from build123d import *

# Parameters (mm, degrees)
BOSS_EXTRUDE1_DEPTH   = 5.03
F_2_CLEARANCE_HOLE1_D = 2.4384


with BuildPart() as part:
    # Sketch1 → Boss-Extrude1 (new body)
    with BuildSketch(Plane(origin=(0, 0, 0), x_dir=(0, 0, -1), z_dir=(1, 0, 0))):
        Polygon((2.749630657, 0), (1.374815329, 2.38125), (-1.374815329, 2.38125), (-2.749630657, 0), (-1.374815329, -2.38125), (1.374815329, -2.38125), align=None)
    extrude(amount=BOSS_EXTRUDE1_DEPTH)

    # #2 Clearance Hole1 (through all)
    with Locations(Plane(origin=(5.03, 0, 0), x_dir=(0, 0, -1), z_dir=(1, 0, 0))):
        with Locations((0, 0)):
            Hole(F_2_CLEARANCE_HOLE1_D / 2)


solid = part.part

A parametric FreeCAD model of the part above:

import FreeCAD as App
import Part
import Sketcher
Q = App.Units.Quantity

doc = App.newDocument("Part")
body = doc.addObject("PartDesign::Body", "Body")

# Sketch on YZ plane
sketch1 = body.newObject("Sketcher::SketchObject", "Sketch")
sketch1.AttachmentSupport = (doc.getObject("YZ_Plane"), [""])
sketch1.MapMode = "FlatFace"
sketch1.addGeometry(Part.LineSegment(App.Vector(0, -2.7, 0), App.Vector(2.4, -1.4, 0)), False)
sketch1.addGeometry(Part.LineSegment(App.Vector(2.4, -1.4, 0), App.Vector(2.4, 1.4, 0)), False)
sketch1.addGeometry(Part.LineSegment(App.Vector(2.4, 1.4, 0), App.Vector(0, 2.7, 0)), False)
sketch1.addGeometry(Part.LineSegment(App.Vector(0, 2.7, 0), App.Vector(-2.4, 1.4, 0)), False)
sketch1.addGeometry(Part.LineSegment(App.Vector(-2.4, 1.4, 0), App.Vector(-2.4, -1.4, 0)), False)
sketch1.addGeometry(Part.LineSegment(App.Vector(-2.4, -1.4, 0), App.Vector(0, -2.7, 0)), False)
sketch1.addConstraint(Sketcher.Constraint("Coincident", 0, 2, 1, 1))
sketch1.addConstraint(Sketcher.Constraint("Coincident", 1, 2, 2, 1))
sketch1.addConstraint(Sketcher.Constraint("Coincident", 2, 2, 3, 1))
sketch1.addConstraint(Sketcher.Constraint("Coincident", 3, 2, 4, 1))
sketch1.addConstraint(Sketcher.Constraint("Coincident", 4, 2, 5, 1))
sketch1.addConstraint(Sketcher.Constraint("Coincident", 5, 2, 0, 1))
sketch1.addConstraint(Sketcher.Constraint("Vertical", 1))
sketch1.addConstraint(Sketcher.Constraint("Vertical", 4))
sketch1.addConstraint(Sketcher.Constraint("Symmetric", 0, 2, 3, 2, -1, 1))
sketch1.addConstraint(Sketcher.Constraint("Symmetric", 2, 2, 5, 2, -1, 1))
sketch1.addConstraint(Sketcher.Constraint("PointOnObject", 2, 2, -2))
sketch1.addConstraint(Sketcher.Constraint("Parallel", 2, 5))
sketch1.addConstraint(Sketcher.Constraint("Horizontal", 1, 2, 3, 2))
sketch1.addConstraint(Sketcher.Constraint("Angle", 0, Q("30 deg")))
sketch1.addConstraint(Sketcher.Constraint("DistanceX", -1, 1, 0, 2, Q("0.09375 in")))
sketch1.addConstraint(Sketcher.Constraint("DistanceY", 1, 1, 1, 2, Q("2.749631 mm")))
pad1 = body.newObject("PartDesign::Pad", "Pad")
pad1.Profile = sketch1
pad1.Length = 5.03

# Sketch on YZ plane
sketch2 = body.newObject("Sketcher::SketchObject", "Sketch001")
sketch2.AttachmentSupport = (doc.getObject("YZ_Plane"), [""])
sketch2.MapMode = "FlatFace"
sketch2.AttachmentOffset = App.Placement(App.Vector(0, 0, 5.03), App.Rotation())
sketch2.addGeometry(Part.Circle(App.Vector(0, 0, 0), App.Vector(0, 0, 1), 1.2), False)
sketch2.addConstraint(Sketcher.Constraint("Coincident", 0, 3, -1, 1))
sketch2.addConstraint(Sketcher.Constraint("Diameter", 0, Q("0.096 in")))
doc.recompute()
hole = body.newObject("PartDesign::Hole", "Hole")
hole.Profile = sketch2
hole.ThreadType = "None"
hole.Diameter = Q("0.096 in")
hole.DepthType = "ThroughAll"

doc.recompute()
